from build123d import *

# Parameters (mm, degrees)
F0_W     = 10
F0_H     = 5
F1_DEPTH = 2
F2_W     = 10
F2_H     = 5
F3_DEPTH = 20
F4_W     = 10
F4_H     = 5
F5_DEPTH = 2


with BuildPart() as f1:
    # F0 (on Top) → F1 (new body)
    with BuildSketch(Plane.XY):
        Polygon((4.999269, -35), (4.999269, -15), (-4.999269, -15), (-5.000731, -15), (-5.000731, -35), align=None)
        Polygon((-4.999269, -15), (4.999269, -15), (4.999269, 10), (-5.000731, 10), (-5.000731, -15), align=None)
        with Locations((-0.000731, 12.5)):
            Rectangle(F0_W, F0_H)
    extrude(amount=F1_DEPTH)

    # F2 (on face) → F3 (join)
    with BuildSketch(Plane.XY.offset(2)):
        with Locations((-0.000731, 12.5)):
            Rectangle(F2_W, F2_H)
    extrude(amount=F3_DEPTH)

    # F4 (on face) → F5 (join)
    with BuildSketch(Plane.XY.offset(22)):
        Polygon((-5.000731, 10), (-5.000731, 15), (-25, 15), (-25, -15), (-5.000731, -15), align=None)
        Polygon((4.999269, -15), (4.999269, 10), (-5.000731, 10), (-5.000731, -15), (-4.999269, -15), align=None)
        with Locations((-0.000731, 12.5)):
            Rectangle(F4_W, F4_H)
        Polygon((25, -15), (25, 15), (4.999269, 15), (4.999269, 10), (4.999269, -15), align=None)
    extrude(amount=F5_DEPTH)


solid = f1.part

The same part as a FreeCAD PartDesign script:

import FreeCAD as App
import Part
import Sketcher

V = App.Vector


def add_polygon(sketch, points):
    """Adds a closed chain of lines whose ends are joined by coincident constraints."""
    first, n = sketch.GeometryCount, len(points)
    for a, b in zip(points, points[1:] + points[:1]):
        sketch.addGeometry(Part.LineSegment(App.Vector(*a, 0), App.Vector(*b, 0)), False)
    for i in range(n):
        sketch.addConstraint(Sketcher.Constraint("Coincident", first + i, 2, first + (i + 1) % n, 1))

doc = App.newDocument("Part")
params = doc.addObject("Spreadsheet::Sheet", "Params")
for row, (alias, value) in enumerate([
    ("sketch1_width", "10 mm"),
    ("sketch1_height", "50 mm"),
    ("pad1_length", "2 mm"),
    ("sketch2_width", "10 mm"),
    ("sketch2_height", "5 mm"),
    ("pad2_length", "20 mm"),
    ("sketch3_width", "50 mm"),
    ("sketch3_height", "30 mm"),
    ("pad3_length", "2 mm"),
], start=1):
    params.set(f"A{row}", alias)
    params.set(f"B{row}", "=" + value)
    params.setAlias(f"B{row}", alias)

body = doc.addObject("PartDesign::Body", "Body")

# Sketch on XY plane
sketch1 = body.newObject("Sketcher::SketchObject", "Sketch")
sketch1.AttachmentSupport = (doc.getObject("XY_Plane"), [""])
sketch1.MapMode = "FlatFace"
add_polygon(sketch1, [(4.999269, -35), (4.999269, 15), (-5.000731, 15), (-5.000731, -35)])  # lines 0-3
sketch1.addConstraint(Sketcher.Constraint("Vertical", 0))
sketch1.addConstraint(Sketcher.Constraint("Horizontal", 1))
sketch1.addConstraint(Sketcher.Constraint("Vertical", 2))
sketch1.addConstraint(Sketcher.Constraint("Horizontal", 3))
sketch1.addConstraint(Sketcher.Constraint("DistanceX", 1, 2, 1, 1, 10.0))
sketch1.addConstraint(Sketcher.Constraint("DistanceY", 0, 1, 0, 2, 50.0))
sketch1.addConstraint(Sketcher.Constraint("DistanceY", -1, 1, 0, 2, 15.0))
sketch1.addConstraint(Sketcher.Constraint("DistanceX", -1, 1, 0, 2, 4.999269))
sketch1.setExpression("Constraints[8]", "Params.sketch1_width")
sketch1.setExpression("Constraints[9]", "Params.sketch1_height")
pad1 = body.newObject("PartDesign::Pad", "Pad")
pad1.Profile = sketch1
pad1.setExpression("Length", "Params.pad1_length")

# Sketch on XY plane
sketch2 = body.newObject("Sketcher::SketchObject", "Sketch001")
sketch2.AttachmentSupport = (doc.getObject("XY_Plane"), [""])
sketch2.MapMode = "FlatFace"
sketch2.AttachmentOffset = App.Placement(V(0, 0, 2), App.Rotation())
add_polygon(sketch2, [(-5.000731, 15), (-5.000731, 10), (4.999269, 10), (4.999269, 15)])  # lines 0-3
sketch2.addConstraint(Sketcher.Constraint("Vertical", 0))
sketch2.addConstraint(Sketcher.Constraint("Horizontal", 1))
sketch2.addConstraint(Sketcher.Constraint("Vertical", 2))
sketch2.addConstraint(Sketcher.Constraint("Horizontal", 3))
sketch2.addConstraint(Sketcher.Constraint("DistanceX", 1, 1, 1, 2, 10.0))
sketch2.addConstraint(Sketcher.Constraint("DistanceY", 0, 2, 0, 1, 5.0))
sketch2.addConstraint(Sketcher.Constraint("DistanceY", -1, 1, 0, 2, 10.0))
sketch2.addConstraint(Sketcher.Constraint("DistanceX", 0, 2, -1, 1, 5.000731))
sketch2.setExpression("Constraints[8]", "Params.sketch2_width")
sketch2.setExpression("Constraints[9]", "Params.sketch2_height")
pad2 = body.newObject("PartDesign::Pad", "Pad001")
pad2.Profile = sketch2
pad2.setExpression("Length", "Params.pad2_length")

# Sketch on XY plane
sketch3 = body.newObject("Sketcher::SketchObject", "Sketch002")
sketch3.AttachmentSupport = (doc.getObject("XY_Plane"), [""])
sketch3.MapMode = "FlatFace"
sketch3.AttachmentOffset = App.Placement(V(0, 0, 22), App.Rotation())
add_polygon(sketch3, [(-25, 15), (-25, -15), (25, -15), (25, 15)])  # lines 0-3
sketch3.addConstraint(Sketcher.Constraint("Vertical", 0))
sketch3.addConstraint(Sketcher.Constraint("Horizontal", 1))
sketch3.addConstraint(Sketcher.Constraint("Vertical", 2))
sketch3.addConstraint(Sketcher.Constraint("Horizontal", 3))
sketch3.addConstraint(Sketcher.Constraint("Symmetric", 0, 2, 2, 2, -1, 1))
sketch3.addConstraint(Sketcher.Constraint("DistanceX", 1, 1, 1, 2, 50.0))
sketch3.addConstraint(Sketcher.Constraint("DistanceY", 0, 2, 0, 1, 30.0))
sketch3.setExpression("Constraints[9]", "Params.sketch3_width")
sketch3.setExpression("Constraints[10]", "Params.sketch3_height")
pad3 = body.newObject("PartDesign::Pad", "Pad002")
pad3.Profile = sketch3
pad3.setExpression("Length", "Params.pad3_length")

doc.recompute()
